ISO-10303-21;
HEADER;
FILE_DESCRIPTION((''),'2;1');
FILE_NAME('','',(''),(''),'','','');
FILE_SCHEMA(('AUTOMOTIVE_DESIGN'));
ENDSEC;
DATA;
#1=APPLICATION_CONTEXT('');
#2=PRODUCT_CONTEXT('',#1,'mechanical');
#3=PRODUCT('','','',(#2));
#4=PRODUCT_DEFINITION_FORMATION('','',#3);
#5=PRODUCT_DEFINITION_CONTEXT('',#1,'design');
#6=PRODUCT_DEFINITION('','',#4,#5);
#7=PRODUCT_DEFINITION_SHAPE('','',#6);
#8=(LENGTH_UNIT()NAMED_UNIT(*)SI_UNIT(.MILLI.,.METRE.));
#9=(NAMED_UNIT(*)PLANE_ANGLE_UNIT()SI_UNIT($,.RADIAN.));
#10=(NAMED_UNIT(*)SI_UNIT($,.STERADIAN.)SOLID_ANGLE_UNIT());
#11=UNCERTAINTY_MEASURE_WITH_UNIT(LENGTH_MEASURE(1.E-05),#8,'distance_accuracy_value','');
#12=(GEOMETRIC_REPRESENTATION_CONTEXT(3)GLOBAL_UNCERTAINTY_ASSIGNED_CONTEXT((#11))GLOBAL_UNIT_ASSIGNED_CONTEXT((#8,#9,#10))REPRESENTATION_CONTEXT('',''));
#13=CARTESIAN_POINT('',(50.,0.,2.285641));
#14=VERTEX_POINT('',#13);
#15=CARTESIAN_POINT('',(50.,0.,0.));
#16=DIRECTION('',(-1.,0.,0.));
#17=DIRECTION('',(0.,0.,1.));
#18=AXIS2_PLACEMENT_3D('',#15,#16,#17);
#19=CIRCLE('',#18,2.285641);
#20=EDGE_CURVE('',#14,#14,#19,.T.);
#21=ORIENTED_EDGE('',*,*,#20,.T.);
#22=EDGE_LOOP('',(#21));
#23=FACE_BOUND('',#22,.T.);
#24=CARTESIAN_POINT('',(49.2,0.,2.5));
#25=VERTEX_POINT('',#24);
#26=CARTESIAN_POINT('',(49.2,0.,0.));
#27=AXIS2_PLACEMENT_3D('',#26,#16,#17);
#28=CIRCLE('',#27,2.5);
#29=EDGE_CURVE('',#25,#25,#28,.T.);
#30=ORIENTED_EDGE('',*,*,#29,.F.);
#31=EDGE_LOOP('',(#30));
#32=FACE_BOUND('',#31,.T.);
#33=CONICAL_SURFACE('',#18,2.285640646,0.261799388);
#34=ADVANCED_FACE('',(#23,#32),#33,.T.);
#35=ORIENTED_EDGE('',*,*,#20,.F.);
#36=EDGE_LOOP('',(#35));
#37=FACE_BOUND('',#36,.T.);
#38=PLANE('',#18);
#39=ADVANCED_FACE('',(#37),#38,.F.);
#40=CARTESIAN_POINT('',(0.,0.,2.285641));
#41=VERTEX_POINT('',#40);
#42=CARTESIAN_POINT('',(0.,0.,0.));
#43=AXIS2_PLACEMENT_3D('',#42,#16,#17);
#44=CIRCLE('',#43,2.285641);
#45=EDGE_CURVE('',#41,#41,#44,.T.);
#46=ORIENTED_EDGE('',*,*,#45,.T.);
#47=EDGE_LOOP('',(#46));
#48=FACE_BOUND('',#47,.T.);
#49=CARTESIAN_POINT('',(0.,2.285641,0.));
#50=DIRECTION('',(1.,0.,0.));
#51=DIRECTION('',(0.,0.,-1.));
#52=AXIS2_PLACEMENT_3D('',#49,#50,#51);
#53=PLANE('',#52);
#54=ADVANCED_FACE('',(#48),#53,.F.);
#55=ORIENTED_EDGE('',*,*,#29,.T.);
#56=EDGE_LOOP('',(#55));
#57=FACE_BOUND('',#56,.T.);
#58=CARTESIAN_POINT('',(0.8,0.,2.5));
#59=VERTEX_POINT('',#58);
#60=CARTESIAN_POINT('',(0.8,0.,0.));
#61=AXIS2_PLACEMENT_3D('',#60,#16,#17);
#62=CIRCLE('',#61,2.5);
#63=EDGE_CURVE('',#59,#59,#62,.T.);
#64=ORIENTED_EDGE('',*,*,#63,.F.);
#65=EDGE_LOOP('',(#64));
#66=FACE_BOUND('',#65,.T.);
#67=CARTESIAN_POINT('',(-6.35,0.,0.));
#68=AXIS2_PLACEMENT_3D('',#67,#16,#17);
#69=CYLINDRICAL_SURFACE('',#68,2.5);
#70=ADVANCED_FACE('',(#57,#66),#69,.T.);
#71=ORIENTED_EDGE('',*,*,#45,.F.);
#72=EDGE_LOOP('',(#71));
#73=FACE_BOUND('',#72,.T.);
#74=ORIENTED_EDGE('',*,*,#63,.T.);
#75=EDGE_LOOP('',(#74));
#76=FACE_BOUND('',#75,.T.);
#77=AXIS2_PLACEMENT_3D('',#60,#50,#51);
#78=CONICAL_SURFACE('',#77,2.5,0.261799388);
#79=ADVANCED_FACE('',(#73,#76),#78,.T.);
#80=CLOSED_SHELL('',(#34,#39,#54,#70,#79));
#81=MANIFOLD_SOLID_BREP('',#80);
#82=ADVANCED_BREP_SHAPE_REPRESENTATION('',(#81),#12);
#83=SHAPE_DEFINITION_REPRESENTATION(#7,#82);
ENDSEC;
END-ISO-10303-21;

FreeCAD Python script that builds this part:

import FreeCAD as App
import Part
import Sketcher

V = App.Vector
Q = App.Units.Quantity

doc = App.newDocument("Part")
body = doc.addObject("PartDesign::Body", "Body")

# Sketch on XY plane
sketch1 = body.newObject("Sketcher::SketchObject", "Sketch")
sketch1.AttachmentSupport = (doc.getObject("XY_Plane"), [""])
sketch1.MapMode = "FlatFace"
sketch1.addGeometry([
    Part.LineSegment(V(0, 0, 0), V(50, 0, 0)),  # 0
    Part.LineSegment(V(50, 0, 0), V(50, 2.285641, 0)),  # 1
    Part.LineSegment(V(50, 2.285641, 0), V(49.2, 2.5, 0)),  # 2
    Part.LineSegment(V(49.2, 2.5, 0), V(0.8, 2.5, 0)),  # 3
    Part.LineSegment(V(0.8, 2.5, 0), V(0, 2.285641, 0)),  # 4
    Part.LineSegment(V(0, 2.285641, 0), V(0, 0, 0)),  # 5
], False)
sketch1.addConstraint([
    Sketcher.Constraint("Coincident", 0, 2, 1, 1),
    Sketcher.Constraint("Coincident", 1, 2, 2, 1),
    Sketcher.Constraint("Coincident", 2, 2, 3, 1),
    Sketcher.Constraint("Coincident", 3, 2, 4, 1),
    Sketcher.Constraint("Coincident", 4, 2, 5, 1),
    Sketcher.Constraint("Coincident", 5, 2, 0, 1),
    Sketcher.Constraint("Horizontal", 0),
    Sketcher.Constraint("Vertical", 1),
    Sketcher.Constraint("Horizontal", 3),
    Sketcher.Constraint("Vertical", 5),
    Sketcher.Constraint("Coincident", 5, 2, -1, 1),
    Sketcher.Constraint("Horizontal", 1, 2, 4, 2),
    Sketcher.Constraint("Equal", 2, 4),
    Sketcher.Constraint("DistanceX", 0, 1, 0, 2, 50.0),
    Sketcher.Constraint("Angle", 2, Q("165 deg")),
    Sketcher.Constraint("DistanceX", 3, 2, 3, 1, 48.4),
    Sketcher.Constraint("DistanceY", -1, 1, 2, 2, 2.5),
])
revolution = body.newObject("PartDesign::Revolution", "Revolution")
revolution.Profile = sketch1
revolution.ReferenceAxis = (sketch1, ["H_Axis"])
revolution.Angle = 360

doc.recompute()
